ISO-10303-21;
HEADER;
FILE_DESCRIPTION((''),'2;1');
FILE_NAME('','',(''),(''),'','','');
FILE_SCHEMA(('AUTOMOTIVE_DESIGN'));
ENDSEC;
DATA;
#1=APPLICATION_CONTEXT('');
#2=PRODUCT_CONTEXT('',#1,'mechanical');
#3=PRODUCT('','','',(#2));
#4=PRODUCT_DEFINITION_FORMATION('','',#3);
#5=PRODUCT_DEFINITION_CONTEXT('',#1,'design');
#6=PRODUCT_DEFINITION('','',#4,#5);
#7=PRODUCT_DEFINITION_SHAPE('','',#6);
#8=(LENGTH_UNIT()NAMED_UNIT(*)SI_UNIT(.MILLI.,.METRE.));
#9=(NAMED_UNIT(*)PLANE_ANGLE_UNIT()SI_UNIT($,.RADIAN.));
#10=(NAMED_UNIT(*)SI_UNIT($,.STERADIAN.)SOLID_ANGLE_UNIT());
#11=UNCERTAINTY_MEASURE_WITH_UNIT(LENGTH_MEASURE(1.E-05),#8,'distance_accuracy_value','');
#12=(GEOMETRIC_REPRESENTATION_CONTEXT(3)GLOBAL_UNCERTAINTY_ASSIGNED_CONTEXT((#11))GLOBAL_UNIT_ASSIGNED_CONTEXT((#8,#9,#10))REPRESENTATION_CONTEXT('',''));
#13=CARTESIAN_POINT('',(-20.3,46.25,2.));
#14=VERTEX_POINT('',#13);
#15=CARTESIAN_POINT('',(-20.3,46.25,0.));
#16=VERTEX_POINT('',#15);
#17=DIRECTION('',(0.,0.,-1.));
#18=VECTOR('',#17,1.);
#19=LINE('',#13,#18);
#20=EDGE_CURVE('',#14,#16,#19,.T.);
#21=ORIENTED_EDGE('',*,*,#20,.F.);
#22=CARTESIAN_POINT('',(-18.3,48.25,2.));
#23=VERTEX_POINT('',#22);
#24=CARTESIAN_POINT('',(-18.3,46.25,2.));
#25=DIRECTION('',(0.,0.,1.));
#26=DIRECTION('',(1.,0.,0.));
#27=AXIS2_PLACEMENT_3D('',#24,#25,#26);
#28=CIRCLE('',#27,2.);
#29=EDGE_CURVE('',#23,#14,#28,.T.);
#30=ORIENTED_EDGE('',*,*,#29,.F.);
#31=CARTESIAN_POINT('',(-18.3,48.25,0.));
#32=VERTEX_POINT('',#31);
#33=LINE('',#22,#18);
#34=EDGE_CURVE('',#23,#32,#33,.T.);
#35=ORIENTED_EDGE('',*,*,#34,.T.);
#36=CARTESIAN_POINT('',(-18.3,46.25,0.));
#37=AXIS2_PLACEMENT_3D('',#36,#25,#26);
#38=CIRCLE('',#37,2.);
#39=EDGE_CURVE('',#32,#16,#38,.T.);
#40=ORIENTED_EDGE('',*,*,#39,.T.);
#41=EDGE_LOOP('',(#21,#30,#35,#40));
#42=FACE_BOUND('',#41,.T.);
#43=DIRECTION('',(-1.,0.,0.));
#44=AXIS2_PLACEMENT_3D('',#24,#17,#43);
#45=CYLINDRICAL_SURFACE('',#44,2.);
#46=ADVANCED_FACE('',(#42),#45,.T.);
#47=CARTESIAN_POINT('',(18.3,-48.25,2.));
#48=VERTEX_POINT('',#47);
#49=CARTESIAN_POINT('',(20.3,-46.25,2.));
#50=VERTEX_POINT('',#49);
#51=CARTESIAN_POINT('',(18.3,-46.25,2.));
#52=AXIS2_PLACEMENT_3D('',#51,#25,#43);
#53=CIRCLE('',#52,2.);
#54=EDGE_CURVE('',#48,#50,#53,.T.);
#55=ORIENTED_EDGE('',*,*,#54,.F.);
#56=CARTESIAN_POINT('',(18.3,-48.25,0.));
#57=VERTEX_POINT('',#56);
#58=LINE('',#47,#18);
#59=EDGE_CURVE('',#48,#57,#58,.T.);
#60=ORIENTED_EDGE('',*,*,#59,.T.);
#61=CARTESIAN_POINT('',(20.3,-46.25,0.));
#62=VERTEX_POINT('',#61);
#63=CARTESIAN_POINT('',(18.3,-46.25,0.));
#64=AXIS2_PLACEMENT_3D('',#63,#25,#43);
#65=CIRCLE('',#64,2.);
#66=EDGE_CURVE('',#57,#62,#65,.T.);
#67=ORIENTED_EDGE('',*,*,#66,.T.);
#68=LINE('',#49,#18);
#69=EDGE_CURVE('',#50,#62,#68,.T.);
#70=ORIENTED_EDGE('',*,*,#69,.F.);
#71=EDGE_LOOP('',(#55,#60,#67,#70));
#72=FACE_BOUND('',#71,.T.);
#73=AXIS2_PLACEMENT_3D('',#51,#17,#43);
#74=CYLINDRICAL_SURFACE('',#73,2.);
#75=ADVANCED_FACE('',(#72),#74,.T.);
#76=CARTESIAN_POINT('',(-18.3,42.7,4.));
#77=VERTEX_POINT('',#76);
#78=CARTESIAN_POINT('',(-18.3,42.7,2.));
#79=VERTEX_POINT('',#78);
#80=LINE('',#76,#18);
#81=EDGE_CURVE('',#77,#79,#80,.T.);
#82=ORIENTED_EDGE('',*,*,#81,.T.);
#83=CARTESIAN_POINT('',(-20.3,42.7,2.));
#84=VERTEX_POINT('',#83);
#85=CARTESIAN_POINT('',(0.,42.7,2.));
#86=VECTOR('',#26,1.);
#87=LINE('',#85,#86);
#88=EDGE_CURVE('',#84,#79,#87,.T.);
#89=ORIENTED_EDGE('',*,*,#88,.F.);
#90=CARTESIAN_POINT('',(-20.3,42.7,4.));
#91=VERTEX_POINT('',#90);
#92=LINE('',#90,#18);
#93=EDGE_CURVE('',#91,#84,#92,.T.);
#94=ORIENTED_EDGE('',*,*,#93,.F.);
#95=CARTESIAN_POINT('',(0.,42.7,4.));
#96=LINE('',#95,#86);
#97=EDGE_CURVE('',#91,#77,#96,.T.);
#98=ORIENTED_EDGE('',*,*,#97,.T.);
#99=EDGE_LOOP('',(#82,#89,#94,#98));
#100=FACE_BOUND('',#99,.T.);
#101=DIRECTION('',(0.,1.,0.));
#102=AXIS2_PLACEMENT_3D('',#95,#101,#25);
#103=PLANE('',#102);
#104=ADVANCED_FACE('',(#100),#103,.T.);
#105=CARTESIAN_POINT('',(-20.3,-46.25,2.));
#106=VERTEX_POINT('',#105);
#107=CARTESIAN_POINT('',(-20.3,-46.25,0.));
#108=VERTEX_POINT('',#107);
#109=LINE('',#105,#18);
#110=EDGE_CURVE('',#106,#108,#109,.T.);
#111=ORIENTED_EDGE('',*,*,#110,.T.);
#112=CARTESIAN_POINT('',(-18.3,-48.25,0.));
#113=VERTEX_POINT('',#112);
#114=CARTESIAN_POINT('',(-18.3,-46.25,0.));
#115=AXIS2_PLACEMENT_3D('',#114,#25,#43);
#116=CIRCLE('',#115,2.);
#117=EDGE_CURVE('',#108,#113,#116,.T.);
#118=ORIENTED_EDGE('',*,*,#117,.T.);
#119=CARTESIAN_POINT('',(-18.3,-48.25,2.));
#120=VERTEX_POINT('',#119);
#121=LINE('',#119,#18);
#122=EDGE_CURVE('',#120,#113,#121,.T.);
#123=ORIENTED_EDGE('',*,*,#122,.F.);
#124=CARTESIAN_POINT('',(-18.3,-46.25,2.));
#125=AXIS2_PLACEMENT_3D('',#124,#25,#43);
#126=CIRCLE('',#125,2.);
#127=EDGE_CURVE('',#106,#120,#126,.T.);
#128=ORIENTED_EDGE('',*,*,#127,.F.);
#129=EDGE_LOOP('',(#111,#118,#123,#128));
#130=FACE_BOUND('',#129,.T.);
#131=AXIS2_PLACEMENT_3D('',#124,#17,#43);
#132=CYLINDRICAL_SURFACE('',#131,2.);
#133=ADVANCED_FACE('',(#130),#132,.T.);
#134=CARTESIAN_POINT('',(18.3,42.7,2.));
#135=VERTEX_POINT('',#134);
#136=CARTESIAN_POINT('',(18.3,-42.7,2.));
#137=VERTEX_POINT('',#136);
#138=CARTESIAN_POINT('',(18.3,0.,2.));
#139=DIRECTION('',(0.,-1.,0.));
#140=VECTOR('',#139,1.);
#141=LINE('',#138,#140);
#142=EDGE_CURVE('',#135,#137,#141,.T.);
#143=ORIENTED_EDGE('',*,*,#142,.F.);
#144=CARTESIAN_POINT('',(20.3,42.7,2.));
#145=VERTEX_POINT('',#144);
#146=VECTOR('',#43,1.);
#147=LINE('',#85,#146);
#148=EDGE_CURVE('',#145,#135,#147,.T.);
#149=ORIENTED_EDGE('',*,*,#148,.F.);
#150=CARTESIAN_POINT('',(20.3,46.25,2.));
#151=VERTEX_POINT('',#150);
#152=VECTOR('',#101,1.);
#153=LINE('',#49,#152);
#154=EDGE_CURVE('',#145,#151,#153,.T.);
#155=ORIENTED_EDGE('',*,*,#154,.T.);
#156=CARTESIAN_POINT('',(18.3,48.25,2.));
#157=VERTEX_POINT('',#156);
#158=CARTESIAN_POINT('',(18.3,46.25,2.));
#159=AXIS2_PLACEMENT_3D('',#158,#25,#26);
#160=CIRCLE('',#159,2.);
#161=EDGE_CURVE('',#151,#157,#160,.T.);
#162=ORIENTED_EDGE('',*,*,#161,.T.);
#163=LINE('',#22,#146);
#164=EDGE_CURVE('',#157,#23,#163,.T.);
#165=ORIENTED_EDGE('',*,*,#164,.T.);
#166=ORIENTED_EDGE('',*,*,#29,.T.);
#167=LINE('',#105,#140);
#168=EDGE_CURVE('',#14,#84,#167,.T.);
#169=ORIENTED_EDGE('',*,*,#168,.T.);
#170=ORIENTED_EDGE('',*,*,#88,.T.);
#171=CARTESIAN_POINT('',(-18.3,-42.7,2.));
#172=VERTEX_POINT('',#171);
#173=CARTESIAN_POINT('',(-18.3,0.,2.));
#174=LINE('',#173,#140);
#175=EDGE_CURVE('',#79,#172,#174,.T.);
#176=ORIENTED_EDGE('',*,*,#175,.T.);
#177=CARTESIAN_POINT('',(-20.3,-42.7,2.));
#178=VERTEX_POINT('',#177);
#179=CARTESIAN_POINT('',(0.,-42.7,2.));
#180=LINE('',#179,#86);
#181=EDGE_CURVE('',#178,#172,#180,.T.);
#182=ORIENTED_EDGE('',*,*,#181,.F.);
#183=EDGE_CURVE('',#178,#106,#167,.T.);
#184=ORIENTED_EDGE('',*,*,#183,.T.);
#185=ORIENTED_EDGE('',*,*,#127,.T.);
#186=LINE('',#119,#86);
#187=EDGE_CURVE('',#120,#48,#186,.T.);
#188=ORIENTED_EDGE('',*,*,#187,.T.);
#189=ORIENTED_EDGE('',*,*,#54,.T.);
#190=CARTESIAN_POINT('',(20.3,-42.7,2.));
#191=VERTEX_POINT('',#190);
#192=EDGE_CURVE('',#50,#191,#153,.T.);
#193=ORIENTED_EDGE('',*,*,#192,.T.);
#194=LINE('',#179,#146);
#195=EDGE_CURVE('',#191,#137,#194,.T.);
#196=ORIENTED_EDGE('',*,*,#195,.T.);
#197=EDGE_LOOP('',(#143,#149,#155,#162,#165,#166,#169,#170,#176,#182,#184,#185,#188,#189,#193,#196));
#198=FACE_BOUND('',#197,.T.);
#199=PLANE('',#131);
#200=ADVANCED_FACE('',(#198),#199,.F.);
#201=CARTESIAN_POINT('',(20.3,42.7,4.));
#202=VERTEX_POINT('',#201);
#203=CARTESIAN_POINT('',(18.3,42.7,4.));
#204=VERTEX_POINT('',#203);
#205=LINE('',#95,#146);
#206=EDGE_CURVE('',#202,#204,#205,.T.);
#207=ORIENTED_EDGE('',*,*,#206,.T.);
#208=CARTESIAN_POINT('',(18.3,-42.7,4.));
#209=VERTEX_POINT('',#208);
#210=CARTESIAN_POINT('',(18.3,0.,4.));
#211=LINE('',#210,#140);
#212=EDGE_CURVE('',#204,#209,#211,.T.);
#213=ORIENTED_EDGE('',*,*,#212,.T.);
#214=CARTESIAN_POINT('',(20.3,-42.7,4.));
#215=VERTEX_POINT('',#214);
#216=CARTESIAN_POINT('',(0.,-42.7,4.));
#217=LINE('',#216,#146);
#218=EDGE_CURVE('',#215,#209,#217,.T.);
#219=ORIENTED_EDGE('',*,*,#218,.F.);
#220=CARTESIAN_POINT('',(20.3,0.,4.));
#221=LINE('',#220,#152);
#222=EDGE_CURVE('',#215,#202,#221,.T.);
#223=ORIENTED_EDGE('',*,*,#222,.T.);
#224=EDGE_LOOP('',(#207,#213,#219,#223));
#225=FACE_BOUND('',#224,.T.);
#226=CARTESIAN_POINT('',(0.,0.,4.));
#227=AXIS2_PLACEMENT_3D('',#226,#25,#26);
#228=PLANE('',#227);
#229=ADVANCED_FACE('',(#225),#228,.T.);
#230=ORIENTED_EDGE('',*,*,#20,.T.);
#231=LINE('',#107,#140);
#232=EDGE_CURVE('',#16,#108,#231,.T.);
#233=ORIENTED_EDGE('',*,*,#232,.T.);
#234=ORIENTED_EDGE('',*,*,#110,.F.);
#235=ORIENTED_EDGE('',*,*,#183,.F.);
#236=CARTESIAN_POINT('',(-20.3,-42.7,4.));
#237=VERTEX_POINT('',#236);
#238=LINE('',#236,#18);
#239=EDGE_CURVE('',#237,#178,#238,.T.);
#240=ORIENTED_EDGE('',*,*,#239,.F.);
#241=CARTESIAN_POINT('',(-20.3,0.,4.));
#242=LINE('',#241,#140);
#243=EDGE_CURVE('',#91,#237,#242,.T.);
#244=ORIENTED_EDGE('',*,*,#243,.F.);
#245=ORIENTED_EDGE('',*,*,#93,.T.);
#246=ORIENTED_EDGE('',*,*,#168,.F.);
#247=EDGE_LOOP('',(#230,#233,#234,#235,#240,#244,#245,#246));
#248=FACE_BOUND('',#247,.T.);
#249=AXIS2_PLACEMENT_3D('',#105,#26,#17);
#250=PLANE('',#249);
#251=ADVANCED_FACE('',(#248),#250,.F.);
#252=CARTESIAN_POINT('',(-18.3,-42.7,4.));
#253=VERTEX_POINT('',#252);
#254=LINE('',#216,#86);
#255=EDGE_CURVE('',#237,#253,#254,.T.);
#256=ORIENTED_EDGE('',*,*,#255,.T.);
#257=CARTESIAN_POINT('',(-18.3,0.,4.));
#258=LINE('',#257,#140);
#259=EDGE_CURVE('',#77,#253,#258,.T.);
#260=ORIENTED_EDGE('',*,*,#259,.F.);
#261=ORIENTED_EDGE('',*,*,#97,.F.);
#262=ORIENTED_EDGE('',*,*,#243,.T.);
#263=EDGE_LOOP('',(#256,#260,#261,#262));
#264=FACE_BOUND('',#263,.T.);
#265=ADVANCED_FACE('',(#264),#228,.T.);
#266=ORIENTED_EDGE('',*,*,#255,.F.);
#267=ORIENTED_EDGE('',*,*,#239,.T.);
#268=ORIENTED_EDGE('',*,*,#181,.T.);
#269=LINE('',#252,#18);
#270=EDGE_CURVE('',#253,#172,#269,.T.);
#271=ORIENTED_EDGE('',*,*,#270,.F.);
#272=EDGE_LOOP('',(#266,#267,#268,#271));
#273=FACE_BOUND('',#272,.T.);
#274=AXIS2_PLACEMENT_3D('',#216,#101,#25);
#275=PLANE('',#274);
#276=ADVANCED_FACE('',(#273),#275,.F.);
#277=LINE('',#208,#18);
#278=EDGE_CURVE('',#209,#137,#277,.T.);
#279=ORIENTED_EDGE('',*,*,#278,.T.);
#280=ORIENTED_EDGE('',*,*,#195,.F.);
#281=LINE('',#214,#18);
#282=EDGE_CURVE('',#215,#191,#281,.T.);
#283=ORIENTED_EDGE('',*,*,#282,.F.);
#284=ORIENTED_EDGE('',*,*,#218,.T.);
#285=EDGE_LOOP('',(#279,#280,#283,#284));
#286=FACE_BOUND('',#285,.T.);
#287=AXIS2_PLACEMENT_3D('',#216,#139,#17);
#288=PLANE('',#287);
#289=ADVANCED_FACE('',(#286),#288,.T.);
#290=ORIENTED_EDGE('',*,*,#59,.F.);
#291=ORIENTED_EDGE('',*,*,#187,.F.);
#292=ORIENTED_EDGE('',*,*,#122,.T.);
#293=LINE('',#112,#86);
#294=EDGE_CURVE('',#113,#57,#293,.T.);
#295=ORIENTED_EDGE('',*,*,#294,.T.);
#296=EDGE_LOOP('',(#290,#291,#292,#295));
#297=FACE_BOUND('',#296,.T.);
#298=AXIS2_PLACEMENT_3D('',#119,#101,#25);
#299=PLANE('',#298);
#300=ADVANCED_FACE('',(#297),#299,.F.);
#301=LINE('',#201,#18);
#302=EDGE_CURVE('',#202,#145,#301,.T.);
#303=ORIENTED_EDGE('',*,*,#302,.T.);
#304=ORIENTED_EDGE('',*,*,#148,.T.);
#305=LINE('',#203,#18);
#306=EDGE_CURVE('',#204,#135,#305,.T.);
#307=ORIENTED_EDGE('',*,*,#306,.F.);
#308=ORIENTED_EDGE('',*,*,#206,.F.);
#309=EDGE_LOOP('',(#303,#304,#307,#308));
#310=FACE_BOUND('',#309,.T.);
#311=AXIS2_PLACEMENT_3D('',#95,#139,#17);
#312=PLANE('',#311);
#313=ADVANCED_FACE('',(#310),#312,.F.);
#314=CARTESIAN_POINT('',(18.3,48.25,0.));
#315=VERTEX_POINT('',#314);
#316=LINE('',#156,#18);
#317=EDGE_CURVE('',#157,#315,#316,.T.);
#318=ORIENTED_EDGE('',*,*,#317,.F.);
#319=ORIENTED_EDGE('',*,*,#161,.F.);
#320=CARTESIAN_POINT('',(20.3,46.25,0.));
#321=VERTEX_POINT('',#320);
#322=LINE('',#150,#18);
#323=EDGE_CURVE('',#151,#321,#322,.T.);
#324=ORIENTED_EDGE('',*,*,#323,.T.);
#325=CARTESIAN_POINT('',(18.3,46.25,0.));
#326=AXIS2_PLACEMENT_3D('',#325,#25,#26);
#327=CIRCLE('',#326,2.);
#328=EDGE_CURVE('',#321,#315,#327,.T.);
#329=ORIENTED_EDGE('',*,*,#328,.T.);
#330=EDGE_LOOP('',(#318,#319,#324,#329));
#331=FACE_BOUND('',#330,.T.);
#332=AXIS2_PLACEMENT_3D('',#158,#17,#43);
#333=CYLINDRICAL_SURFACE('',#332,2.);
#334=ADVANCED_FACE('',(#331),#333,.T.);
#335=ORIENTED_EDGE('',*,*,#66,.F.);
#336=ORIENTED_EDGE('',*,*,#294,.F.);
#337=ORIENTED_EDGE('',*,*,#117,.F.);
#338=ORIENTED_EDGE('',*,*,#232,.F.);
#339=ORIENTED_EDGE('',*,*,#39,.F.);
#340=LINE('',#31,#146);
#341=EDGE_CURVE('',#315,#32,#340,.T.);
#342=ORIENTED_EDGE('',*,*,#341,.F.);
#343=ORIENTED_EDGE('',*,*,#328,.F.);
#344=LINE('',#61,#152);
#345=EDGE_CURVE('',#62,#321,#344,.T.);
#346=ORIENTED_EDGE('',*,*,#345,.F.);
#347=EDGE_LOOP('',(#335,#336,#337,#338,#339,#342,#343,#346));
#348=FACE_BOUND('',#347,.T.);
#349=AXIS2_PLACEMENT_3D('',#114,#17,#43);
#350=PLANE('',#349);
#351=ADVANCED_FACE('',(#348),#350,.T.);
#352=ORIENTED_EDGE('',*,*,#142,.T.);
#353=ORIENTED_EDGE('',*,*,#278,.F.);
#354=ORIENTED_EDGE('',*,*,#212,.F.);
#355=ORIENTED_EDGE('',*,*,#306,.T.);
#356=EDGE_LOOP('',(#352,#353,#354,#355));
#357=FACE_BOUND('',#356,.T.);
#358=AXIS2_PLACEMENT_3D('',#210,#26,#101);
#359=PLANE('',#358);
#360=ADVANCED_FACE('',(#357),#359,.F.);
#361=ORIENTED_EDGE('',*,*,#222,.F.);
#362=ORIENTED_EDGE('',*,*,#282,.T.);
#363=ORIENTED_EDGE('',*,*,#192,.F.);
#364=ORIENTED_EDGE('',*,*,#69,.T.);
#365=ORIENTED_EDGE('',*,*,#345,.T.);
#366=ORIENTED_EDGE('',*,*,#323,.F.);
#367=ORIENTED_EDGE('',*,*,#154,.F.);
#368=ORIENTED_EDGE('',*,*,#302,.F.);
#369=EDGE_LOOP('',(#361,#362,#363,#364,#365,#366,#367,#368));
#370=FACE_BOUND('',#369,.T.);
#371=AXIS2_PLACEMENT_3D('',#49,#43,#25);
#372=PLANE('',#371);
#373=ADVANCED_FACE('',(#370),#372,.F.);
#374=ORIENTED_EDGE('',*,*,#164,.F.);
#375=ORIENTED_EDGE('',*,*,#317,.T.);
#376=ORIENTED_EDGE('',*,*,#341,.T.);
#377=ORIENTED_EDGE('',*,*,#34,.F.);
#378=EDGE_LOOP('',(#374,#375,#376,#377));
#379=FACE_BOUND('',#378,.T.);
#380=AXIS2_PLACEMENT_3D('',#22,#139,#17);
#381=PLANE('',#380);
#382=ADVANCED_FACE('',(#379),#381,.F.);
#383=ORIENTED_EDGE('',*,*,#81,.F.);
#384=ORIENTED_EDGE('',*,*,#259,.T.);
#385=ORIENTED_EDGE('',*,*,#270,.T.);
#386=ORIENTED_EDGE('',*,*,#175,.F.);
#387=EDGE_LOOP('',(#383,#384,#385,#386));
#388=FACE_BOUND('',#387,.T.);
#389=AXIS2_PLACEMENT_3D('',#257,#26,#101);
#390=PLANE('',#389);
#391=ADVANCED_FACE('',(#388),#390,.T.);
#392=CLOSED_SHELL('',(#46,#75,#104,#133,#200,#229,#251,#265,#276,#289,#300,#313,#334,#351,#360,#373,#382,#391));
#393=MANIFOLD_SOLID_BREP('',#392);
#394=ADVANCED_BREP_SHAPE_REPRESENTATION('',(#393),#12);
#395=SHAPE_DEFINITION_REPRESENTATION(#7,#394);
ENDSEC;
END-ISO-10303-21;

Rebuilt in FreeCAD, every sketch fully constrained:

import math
import FreeCAD as App
import Part
import Sketcher
Q = App.Units.Quantity


def add_polygon(sketch, points):
    """Adds a closed chain of lines whose ends are joined by coincident constraints."""
    first, n = sketch.GeometryCount, len(points)
    for a, b in zip(points, points[1:] + points[:1]):
        sketch.addGeometry(Part.LineSegment(App.Vector(*a, 0), App.Vector(*b, 0)), False)
    for i in range(n):
        sketch.addConstraint(Sketcher.Constraint("Coincident", first + i, 2, first + (i + 1) % n, 1))

doc = App.newDocument("Part")
body = doc.addObject("PartDesign::Body", "Body")

sketch1 = doc.addObject("Sketcher::SketchObject", "Sketch")
body.addObject(sketch1)
sketch1.AttachmentSupport = (doc.XY_Plane, [""])
sketch1.MapMode = "FlatFace"
sketch1.addGeometry([
    Part.LineSegment(App.Vector(-18.3, -48.2, 0), App.Vector(18.3, -48.2, 0)),
    Part.ArcOfCircle(Part.Circle(App.Vector(18.3, -46.2, 0), App.Vector(0, 0, 1), 2), math.radians(-90), math.radians(0)),
    Part.LineSegment(App.Vector(20.3, -46.2, 0), App.Vector(20.3, 46.2, 0)),
    Part.ArcOfCircle(Part.Circle(App.Vector(18.3, 46.2, 0), App.Vector(0, 0, 1), 2), math.radians(0), math.radians(90)),
    Part.LineSegment(App.Vector(18.3, 48.2, 0), App.Vector(-18.3, 48.2, 0)),
    Part.ArcOfCircle(Part.Circle(App.Vector(-18.3, 46.2, 0), App.Vector(0, 0, 1), 2), math.radians(90), math.radians(180)),
    Part.LineSegment(App.Vector(-20.3, 46.2, 0), App.Vector(-20.3, -46.2, 0)),
    Part.ArcOfCircle(Part.Circle(App.Vector(-18.3, -46.2, 0), App.Vector(0, 0, 1), 2), math.radians(-180), math.radians(-90)),
], False)
sketch1.addConstraint([
    Sketcher.Constraint("Tangent", 0, 2, 1, 1),
    Sketcher.Constraint("Tangent", 1, 2, 2, 1),
    Sketcher.Constraint("Tangent", 2, 2, 3, 1),
    Sketcher.Constraint("Tangent", 3, 2, 4, 1),
    Sketcher.Constraint("Tangent", 4, 2, 5, 1),
    Sketcher.Constraint("Tangent", 5, 2, 6, 1),
    Sketcher.Constraint("Tangent", 6, 2, 7, 1),
    Sketcher.Constraint("Tangent", 7, 2, 0, 1),
    Sketcher.Constraint("Horizontal", 0),
    Sketcher.Constraint("Vertical", 2),
    Sketcher.Constraint("Horizontal", 4),
    Sketcher.Constraint("Vertical", 6),
    Sketcher.Constraint("Equal", 1, 3),
    Sketcher.Constraint("Equal", 3, 5),
    Sketcher.Constraint("Equal", 5, 7),
    Sketcher.Constraint("Symmetric", 1, 3, 5, 3, -1, 1),
    Sketcher.Constraint("Radius", 1, Q("2 mm")),
    Sketcher.Constraint("DistanceX", 0, 1, 0, 2, Q("36.6 mm")),
    Sketcher.Constraint("DistanceY", 2, 1, 2, 2, Q("92.5 mm")),
])
pad1 = doc.addObject("PartDesign::Pad", "Pad")
body.addObject(pad1)
pad1.Profile = sketch1
pad1.Length = 2

sketch2 = doc.addObject("Sketcher::SketchObject", "Sketch001")
body.addObject(sketch2)
sketch2.AttachmentSupport = (doc.XY_Plane, [""])
sketch2.MapMode = "FlatFace"
sketch2.AttachmentOffset = App.Placement(App.Vector(0, 0, 2), App.Rotation())
add_polygon(sketch2, [(-20.3, 42.7), (-20.3, -42.7), (-18.3, -42.7), (-18.3, 42.7)])
add_polygon(sketch2, [(18.3, 42.7), (18.3, -42.7), (20.3, -42.7), (20.3, 42.7)])
sketch2.addConstraint([
    Sketcher.Constraint("Vertical", 0),
    Sketcher.Constraint("Horizontal", 1),
    Sketcher.Constraint("Vertical", 2),
    Sketcher.Constraint("Horizontal", 3),
    Sketcher.Constraint("Vertical", 4),
    Sketcher.Constraint("Horizontal", 5),
    Sketcher.Constraint("Vertical", 6),
    Sketcher.Constraint("Horizontal", 7),
    Sketcher.Constraint("Symmetric", 2, 2, 4, 2, -1, 1),
    Sketcher.Constraint("Symmetric", 0, 2, 6, 2, -1, 1),
    Sketcher.Constraint("Horizontal", 1, 2, 4, 2),
    Sketcher.Constraint("DistanceX", 1, 1, 1, 2, Q("2 mm")),
    Sketcher.Constraint("DistanceY", 0, 2, 0, 1, Q("85.4 mm")),
    Sketcher.Constraint("DistanceX", 0, 2, -1, 1, Q("20.3 mm")),
])
pad2 = doc.addObject("PartDesign::Pad", "Pad001")
body.addObject(pad2)
pad2.Profile = sketch2
pad2.Length = 2

doc.recompute()
